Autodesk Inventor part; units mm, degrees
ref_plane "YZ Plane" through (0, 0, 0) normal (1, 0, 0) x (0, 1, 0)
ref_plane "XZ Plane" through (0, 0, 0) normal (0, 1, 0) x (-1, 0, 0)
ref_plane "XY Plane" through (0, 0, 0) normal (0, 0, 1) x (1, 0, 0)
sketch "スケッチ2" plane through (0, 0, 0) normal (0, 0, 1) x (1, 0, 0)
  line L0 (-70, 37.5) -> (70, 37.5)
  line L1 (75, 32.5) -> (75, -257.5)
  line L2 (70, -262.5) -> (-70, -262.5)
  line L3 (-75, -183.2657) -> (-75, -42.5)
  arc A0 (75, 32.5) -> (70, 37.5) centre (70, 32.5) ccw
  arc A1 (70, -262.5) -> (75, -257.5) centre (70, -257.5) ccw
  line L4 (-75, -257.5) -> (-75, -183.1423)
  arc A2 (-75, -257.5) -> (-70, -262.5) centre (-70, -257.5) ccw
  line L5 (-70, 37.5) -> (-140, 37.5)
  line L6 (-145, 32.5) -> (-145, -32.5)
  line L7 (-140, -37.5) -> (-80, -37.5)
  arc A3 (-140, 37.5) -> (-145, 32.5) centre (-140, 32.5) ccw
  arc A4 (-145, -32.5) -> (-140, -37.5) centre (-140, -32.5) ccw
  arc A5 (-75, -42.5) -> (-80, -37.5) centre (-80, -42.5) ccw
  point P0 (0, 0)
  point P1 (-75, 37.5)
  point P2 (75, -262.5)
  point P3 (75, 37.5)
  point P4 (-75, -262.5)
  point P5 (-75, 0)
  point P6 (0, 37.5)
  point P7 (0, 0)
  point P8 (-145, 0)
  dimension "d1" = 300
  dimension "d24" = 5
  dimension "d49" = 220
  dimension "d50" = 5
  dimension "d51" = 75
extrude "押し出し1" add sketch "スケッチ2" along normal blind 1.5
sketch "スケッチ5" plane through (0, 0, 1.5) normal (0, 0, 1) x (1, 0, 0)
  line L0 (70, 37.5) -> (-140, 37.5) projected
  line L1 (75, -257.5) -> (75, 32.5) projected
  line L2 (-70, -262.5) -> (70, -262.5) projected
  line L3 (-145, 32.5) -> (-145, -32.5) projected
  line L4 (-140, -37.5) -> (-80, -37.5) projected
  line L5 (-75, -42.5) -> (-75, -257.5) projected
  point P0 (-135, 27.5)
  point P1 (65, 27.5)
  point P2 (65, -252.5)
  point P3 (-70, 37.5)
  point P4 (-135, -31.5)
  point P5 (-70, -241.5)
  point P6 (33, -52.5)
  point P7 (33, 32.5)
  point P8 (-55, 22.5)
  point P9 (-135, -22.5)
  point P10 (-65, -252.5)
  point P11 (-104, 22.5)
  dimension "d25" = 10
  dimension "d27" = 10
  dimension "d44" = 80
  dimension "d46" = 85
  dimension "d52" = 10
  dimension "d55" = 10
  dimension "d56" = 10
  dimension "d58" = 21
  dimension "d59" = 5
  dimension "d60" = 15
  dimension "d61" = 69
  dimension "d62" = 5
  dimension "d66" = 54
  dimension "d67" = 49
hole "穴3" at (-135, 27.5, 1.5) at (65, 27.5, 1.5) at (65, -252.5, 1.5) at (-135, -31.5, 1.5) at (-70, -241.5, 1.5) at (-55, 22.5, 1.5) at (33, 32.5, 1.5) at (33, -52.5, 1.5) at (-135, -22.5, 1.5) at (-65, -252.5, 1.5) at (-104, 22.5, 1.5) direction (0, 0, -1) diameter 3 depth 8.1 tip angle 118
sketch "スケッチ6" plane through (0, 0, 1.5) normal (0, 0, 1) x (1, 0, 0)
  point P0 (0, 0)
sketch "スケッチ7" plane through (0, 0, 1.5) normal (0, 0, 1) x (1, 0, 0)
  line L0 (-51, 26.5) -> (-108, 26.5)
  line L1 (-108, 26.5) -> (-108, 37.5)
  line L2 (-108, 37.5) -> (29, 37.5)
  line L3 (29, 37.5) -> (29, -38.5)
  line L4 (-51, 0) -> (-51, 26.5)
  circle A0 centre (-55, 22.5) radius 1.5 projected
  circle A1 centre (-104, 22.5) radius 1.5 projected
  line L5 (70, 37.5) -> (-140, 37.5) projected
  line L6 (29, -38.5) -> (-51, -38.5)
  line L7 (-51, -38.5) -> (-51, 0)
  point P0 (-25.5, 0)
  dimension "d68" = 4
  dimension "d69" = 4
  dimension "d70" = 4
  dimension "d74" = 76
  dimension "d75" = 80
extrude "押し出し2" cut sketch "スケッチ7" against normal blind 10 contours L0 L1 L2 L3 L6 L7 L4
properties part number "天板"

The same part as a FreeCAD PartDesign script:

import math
import FreeCAD as App
import Part
import Sketcher
Q = App.Units.Quantity


def add_polygon(sketch, points):
    """Adds a closed chain of lines whose ends are joined by coincident constraints."""
    first, n = sketch.GeometryCount, len(points)
    for a, b in zip(points, points[1:] + points[:1]):
        sketch.addGeometry(Part.LineSegment(App.Vector(*a, 0), App.Vector(*b, 0)), False)
    for i in range(n):
        sketch.addConstraint(Sketcher.Constraint("Coincident", first + i, 2, first + (i + 1) % n, 1))

doc = App.newDocument("Part")
body = doc.addObject("PartDesign::Body", "Body")

# Sketch on XY plane
sketch1 = body.newObject("Sketcher::SketchObject", "Sketch")
sketch1.AttachmentSupport = (doc.getObject("XY_Plane"), [""])
sketch1.MapMode = "FlatFace"
sketch1.addGeometry(Part.LineSegment(App.Vector(70, 38, 0), App.Vector(-140, 38, 0)), False)
sketch1.addGeometry(Part.ArcOfCircle(Part.Circle(App.Vector(-140, 32, 0), App.Vector(0, 0, 1), 5), math.radians(90), math.radians(180)), False)
sketch1.addGeometry(Part.LineSegment(App.Vector(-145, 32, 0), App.Vector(-145, -32, 0)), False)
sketch1.addGeometry(Part.ArcOfCircle(Part.Circle(App.Vector(-140, -32, 0), App.Vector(0, 0, 1), 5), math.radians(180), math.radians(270)), False)
sketch1.addGeometry(Part.LineSegment(App.Vector(-140, -38, 0), App.Vector(-80, -38, 0)), False)
sketch1.addGeometry(Part.ArcOfCircle(Part.Circle(App.Vector(-80, -42, 0), App.Vector(0, 0, 1), 5), math.radians(0), math.radians(90)), False)
sketch1.addGeometry(Part.LineSegment(App.Vector(-75, -42, 0), App.Vector(-75, -258, 0)), False)
sketch1.addGeometry(Part.ArcOfCircle(Part.Circle(App.Vector(-70, -258, 0), App.Vector(0, 0, 1), 5), math.radians(180), math.radians(270)), False)
sketch1.addGeometry(Part.LineSegment(App.Vector(-70, -262, 0), App.Vector(70, -262, 0)), False)
sketch1.addGeometry(Part.ArcOfCircle(Part.Circle(App.Vector(70, -258, 0), App.Vector(0, 0, 1), 5), math.radians(-90), math.radians(0)), False)
sketch1.addGeometry(Part.LineSegment(App.Vector(75, -258, 0), App.Vector(75, 32, 0)), False)
sketch1.addGeometry(Part.ArcOfCircle(Part.Circle(App.Vector(70, 32, 0), App.Vector(0, 0, 1), 5), math.radians(0), math.radians(90)), False)
sketch1.addConstraint(Sketcher.Constraint("Tangent", 0, 2, 1, 1))
sketch1.addConstraint(Sketcher.Constraint("Tangent", 1, 2, 2, 1))
sketch1.addConstraint(Sketcher.Constraint("Tangent", 2, 2, 3, 1))
sketch1.addConstraint(Sketcher.Constraint("Tangent", 3, 2, 4, 1))
sketch1.addConstraint(Sketcher.Constraint("Tangent", 4, 2, 5, 2))
sketch1.addConstraint(Sketcher.Constraint("Tangent", 5, 1, 6, 1))
sketch1.addConstraint(Sketcher.Constraint("Tangent", 6, 2, 7, 1))
sketch1.addConstraint(Sketcher.Constraint("Tangent", 7, 2, 8, 1))
sketch1.addConstraint(Sketcher.Constraint("Tangent", 8, 2, 9, 1))
sketch1.addConstraint(Sketcher.Constraint("Tangent", 9, 2, 10, 1))
sketch1.addConstraint(Sketcher.Constraint("Tangent", 10, 2, 11, 1))
sketch1.addConstraint(Sketcher.Constraint("Tangent", 11, 2, 0, 1))
sketch1.addConstraint(Sketcher.Constraint("Horizontal", 0))
sketch1.addConstraint(Sketcher.Constraint("Vertical", 2))
sketch1.addConstraint(Sketcher.Constraint("Horizontal", 4))
sketch1.addConstraint(Sketcher.Constraint("Vertical", 6))
sketch1.addConstraint(Sketcher.Constraint("Horizontal", 8))
sketch1.addConstraint(Sketcher.Constraint("Vertical", 10))
sketch1.addConstraint(Sketcher.Constraint("Equal", 1, 3))
sketch1.addConstraint(Sketcher.Constraint("Equal", 3, 5))
sketch1.addConstraint(Sketcher.Constraint("Equal", 5, 7))
sketch1.addConstraint(Sketcher.Constraint("Equal", 7, 9))
sketch1.addConstraint(Sketcher.Constraint("Equal", 9, 11))
sketch1.addConstraint(Sketcher.Constraint("Radius", 1, Q("5 mm")))
sketch1.addConstraint(Sketcher.Constraint("DistanceX", 5, 1, -1, 1, Q("75 mm")))
sketch1.addConstraint(Sketcher.Constraint("DistanceX", -1, 1, 9, 2, Q("75 mm")))
sketch1.addConstraint(Sketcher.Constraint("DistanceY", 5, 3, 1, 3, Q("75 mm")))
sketch1.addConstraint(Sketcher.Constraint("DistanceY", 6, 2, 4, 2, Q("220 mm")))
sketch1.addConstraint(Sketcher.Constraint("DistanceX", 0, 2, 0, 1, Q("210 mm")))
sketch1.addConstraint(Sketcher.Constraint("DistanceY", -1, 1, 1, 3, Q("32.5 mm")))
pad1 = body.newObject("PartDesign::Pad", "Pad")
pad1.Profile = sketch1
pad1.Length = 1.5

# Sketch on XY plane
sketch2 = body.newObject("Sketcher::SketchObject", "Sketch001")
sketch2.AttachmentSupport = (doc.getObject("XY_Plane"), [""])
sketch2.MapMode = "FlatFace"
sketch2.AttachmentOffset = App.Placement(App.Vector(0, 0, 1.5), App.Rotation())
sketch2.addGeometry(Part.Circle(App.Vector(-135, 27.5, 0), App.Vector(0, 0, 1), 1.5), False)
sketch2.addGeometry(Part.Circle(App.Vector(65, 27.5, 0), App.Vector(0, 0, 1), 1.5), False)
sketch2.addGeometry(Part.Circle(App.Vector(65, -252.5, 0), App.Vector(0, 0, 1), 1.5), False)
sketch2.addGeometry(Part.Circle(App.Vector(-135, -31.5, 0), App.Vector(0, 0, 1), 1.5), False)
sketch2.addGeometry(Part.Circle(App.Vector(-70, -241.5, 0), App.Vector(0, 0, 1), 1.5), False)
sketch2.addGeometry(Part.Circle(App.Vector(-55, 22.5, 0), App.Vector(0, 0, 1), 1.5), False)
sketch2.addGeometry(Part.Circle(App.Vector(33, 32.5, 0), App.Vector(0, 0, 1), 1.5), False)
sketch2.addGeometry(Part.Circle(App.Vector(33, -52.5, 0), App.Vector(0, 0, 1), 1.5), False)
sketch2.addGeometry(Part.Circle(App.Vector(-135, -22.5, 0), App.Vector(0, 0, 1), 1.5), False)
sketch2.addGeometry(Part.Circle(App.Vector(-65, -252.5, 0), App.Vector(0, 0, 1), 1.5), False)
sketch2.addGeometry(Part.Circle(App.Vector(-104, 22.5, 0), App.Vector(0, 0, 1), 1.5), False)
sketch2.addConstraint(Sketcher.Constraint("Equal", 0, 1))
sketch2.addConstraint(Sketcher.Constraint("Equal", 1, 2))
sketch2.addConstraint(Sketcher.Constraint("Equal", 2, 3))
sketch2.addConstraint(Sketcher.Constraint("Equal", 3, 4))
sketch2.addConstraint(Sketcher.Constraint("Equal", 4, 5))
sketch2.addConstraint(Sketcher.Constraint("Equal", 5, 6))
sketch2.addConstraint(Sketcher.Constraint("Equal", 6, 7))
sketch2.addConstraint(Sketcher.Constraint("Equal", 7, 8))
sketch2.addConstraint(Sketcher.Constraint("Equal", 8, 9))
sketch2.addConstraint(Sketcher.Constraint("Equal", 9, 10))
sketch2.addConstraint(Sketcher.Constraint("Symmetric", 2, 3, 9, 3, -2))
sketch2.addConstraint(Sketcher.Constraint("Horizontal", 0, 3, 1, 3))
sketch2.addConstraint(Sketcher.Constraint("Horizontal", 5, 3, 10, 3))
sketch2.addConstraint(Sketcher.Constraint("Vertical", 1, 3, 2, 3))
sketch2.addConstraint(Sketcher.Constraint("Vertical", 0, 3, 3, 3))
sketch2.addConstraint(Sketcher.Constraint("Vertical", 6, 3, 7, 3))
sketch2.addConstraint(Sketcher.Constraint("Vertical", 3, 3, 8, 3))
sketch2.addConstraint(Sketcher.Constraint("Diameter", 0, Q("3 mm")))
sketch2.addConstraint(Sketcher.Constraint("DistanceX", 0, 3, -1, 1, Q("135 mm")))
sketch2.addConstraint(Sketcher.Constraint("DistanceX", -1, 1, 1, 3, Q("65 mm")))
sketch2.addConstraint(Sketcher.Constraint("DistanceX", 4, 3, -1, 1, Q("70 mm")))
sketch2.addConstraint(Sketcher.Constraint("DistanceX", 5, 3, -1, 1, Q("55 mm")))
sketch2.addConstraint(Sketcher.Constraint("DistanceX", -1, 1, 6, 3, Q("33 mm")))
sketch2.addConstraint(Sketcher.Constraint("DistanceX", 10, 3, -1, 1, Q("104 mm")))
sketch2.addConstraint(Sketcher.Constraint("DistanceY", 2, 3, 1, 3, Q("280 mm")))
sketch2.addConstraint(Sketcher.Constraint("DistanceY", 3, 3, 0, 3, Q("59 mm")))
sketch2.addConstraint(Sketcher.Constraint("DistanceY", 2, 3, 4, 3, Q("11 mm")))
sketch2.addConstraint(Sketcher.Constraint("DistanceY", 5, 3, 0, 3, Q("5 mm")))
sketch2.addConstraint(Sketcher.Constraint("DistanceY", 1, 3, 6, 3, Q("5 mm")))
sketch2.addConstraint(Sketcher.Constraint("DistanceY", 7, 3, 6, 3, Q("85 mm")))
sketch2.addConstraint(Sketcher.Constraint("DistanceY", 3, 3, 8, 3, Q("9 mm")))
sketch2.addConstraint(Sketcher.Constraint("DistanceY", -1, 1, 0, 3, Q("27.5 mm")))
doc.recompute()
hole = body.newObject("PartDesign::Hole", "Hole")
hole.Profile = sketch2
hole.ThreadType = "None"
hole.Diameter = 3
hole.DepthType = "Dimension"
hole.Depth = 8.1
hole.DrillPoint = "Angled"
hole.DrillPointAngle = 118

# Sketch on XY plane
sketch3 = body.newObject("Sketcher::SketchObject", "Sketch002")
sketch3.AttachmentSupport = (doc.getObject("XY_Plane"), [""])
sketch3.MapMode = "FlatFace"
sketch3.AttachmentOffset = App.Placement(App.Vector(0, 0, 1.5), App.Rotation())
add_polygon(sketch3, [(-108, 26), (-51, 26), (-51, -38), (29, -38), (29, 38), (-108, 38)])  # lines 0-5
sketch3.addConstraint(Sketcher.Constraint("Horizontal", 0))
sketch3.addConstraint(Sketcher.Constraint("Vertical", 1))
sketch3.addConstraint(Sketcher.Constraint("Horizontal", 2))
sketch3.addConstraint(Sketcher.Constraint("Vertical", 3))
sketch3.addConstraint(Sketcher.Constraint("Horizontal", 4))
sketch3.addConstraint(Sketcher.Constraint("Vertical", 5))
sketch3.addConstraint(Sketcher.Constraint("DistanceX", 2, 1, 2, 2, Q("80 mm")))
sketch3.addConstraint(Sketcher.Constraint("DistanceY", 3, 1, 3, 2, Q("76 mm")))
sketch3.addConstraint(Sketcher.Constraint("DistanceX", 0, 1, 0, 2, Q("57 mm")))
sketch3.addConstraint(Sketcher.Constraint("DistanceY", 1, 2, 1, 1, Q("65 mm")))
sketch3.addConstraint(Sketcher.Constraint("DistanceX", 0, 2, -1, 1, Q("51 mm")))
sketch3.addConstraint(Sketcher.Constraint("DistanceY", -1, 1, 0, 2, Q("26.5 mm")))
pocket1 = body.newObject("PartDesign::Pocket", "Pocket")
pocket1.Profile = sketch3
pocket1.Length = 10

doc.recompute()
